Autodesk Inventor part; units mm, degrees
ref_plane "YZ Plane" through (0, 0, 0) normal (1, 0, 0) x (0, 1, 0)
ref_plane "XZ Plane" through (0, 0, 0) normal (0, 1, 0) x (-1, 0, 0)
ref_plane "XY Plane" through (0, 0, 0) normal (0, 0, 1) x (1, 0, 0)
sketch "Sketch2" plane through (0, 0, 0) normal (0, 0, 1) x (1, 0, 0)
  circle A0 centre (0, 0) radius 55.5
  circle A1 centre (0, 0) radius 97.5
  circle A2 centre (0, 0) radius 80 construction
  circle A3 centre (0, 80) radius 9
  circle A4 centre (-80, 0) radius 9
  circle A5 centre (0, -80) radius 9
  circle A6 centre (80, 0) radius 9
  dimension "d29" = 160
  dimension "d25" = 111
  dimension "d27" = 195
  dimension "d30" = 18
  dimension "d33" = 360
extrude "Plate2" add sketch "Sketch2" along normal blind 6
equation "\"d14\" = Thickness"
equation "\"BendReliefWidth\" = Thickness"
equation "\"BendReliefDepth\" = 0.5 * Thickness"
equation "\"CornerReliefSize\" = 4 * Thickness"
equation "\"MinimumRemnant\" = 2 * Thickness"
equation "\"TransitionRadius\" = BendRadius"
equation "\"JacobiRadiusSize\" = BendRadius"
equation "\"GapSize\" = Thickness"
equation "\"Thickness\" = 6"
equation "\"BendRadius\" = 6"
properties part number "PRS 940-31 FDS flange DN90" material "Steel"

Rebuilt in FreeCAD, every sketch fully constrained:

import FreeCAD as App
import Part
import Sketcher

V = App.Vector
Q = App.Units.Quantity

doc = App.newDocument("Part")
body = doc.addObject("PartDesign::Body", "Body")

sketch1 = body.newObject("Sketcher::SketchObject", "Sketch")
sketch1.AttachmentSupport = (doc.getObject("XY_Plane"), [""])
sketch1.MapMode = "FlatFace"
sketch1.addGeometry([
    Part.Circle(V(0, 0, 0), V(0, 0, 1), 98),
    Part.Circle(V(0, -80, 0), V(0, 0, 1), 9),
    Part.Circle(V(-80, 0, 0), V(0, 0, 1), 9),
    Part.Circle(V(0, 0, 0), V(0, 0, 1), 56),
    Part.Circle(V(80, 0, 0), V(0, 0, 1), 9),
    Part.Circle(V(0, 80, 0), V(0, 0, 1), 9),
], False)
sketch1.addConstraint([
    Sketcher.Constraint("Coincident", 0, 3, -1, 1),
    Sketcher.Constraint("Coincident", 3, 3, -1, 1),
    Sketcher.Constraint("Equal", 1, 2),
    Sketcher.Constraint("Equal", 2, 4),
    Sketcher.Constraint("Equal", 4, 5),
    Sketcher.Constraint("Symmetric", 2, 3, 4, 3, -1, 1),
    Sketcher.Constraint("Symmetric", 1, 3, 5, 3, -1, 1),
    Sketcher.Constraint("PointOnObject", 1, 3, -2),
    Sketcher.Constraint("PointOnObject", 2, 3, -1),
    Sketcher.Constraint("Diameter", 0, Q("195 mm")),
    Sketcher.Constraint("Diameter", 1, Q("18 mm")),
    Sketcher.Constraint("Diameter", 3, Q("111 mm")),
    Sketcher.Constraint("DistanceX", 2, 3, 4, 3, Q("160 mm")),
    Sketcher.Constraint("DistanceY", 1, 3, 5, 3, Q("160 mm")),
])
pad1 = body.newObject("PartDesign::Pad", "Pad")
pad1.Profile = sketch1
pad1.Length = 6

doc.recompute()
